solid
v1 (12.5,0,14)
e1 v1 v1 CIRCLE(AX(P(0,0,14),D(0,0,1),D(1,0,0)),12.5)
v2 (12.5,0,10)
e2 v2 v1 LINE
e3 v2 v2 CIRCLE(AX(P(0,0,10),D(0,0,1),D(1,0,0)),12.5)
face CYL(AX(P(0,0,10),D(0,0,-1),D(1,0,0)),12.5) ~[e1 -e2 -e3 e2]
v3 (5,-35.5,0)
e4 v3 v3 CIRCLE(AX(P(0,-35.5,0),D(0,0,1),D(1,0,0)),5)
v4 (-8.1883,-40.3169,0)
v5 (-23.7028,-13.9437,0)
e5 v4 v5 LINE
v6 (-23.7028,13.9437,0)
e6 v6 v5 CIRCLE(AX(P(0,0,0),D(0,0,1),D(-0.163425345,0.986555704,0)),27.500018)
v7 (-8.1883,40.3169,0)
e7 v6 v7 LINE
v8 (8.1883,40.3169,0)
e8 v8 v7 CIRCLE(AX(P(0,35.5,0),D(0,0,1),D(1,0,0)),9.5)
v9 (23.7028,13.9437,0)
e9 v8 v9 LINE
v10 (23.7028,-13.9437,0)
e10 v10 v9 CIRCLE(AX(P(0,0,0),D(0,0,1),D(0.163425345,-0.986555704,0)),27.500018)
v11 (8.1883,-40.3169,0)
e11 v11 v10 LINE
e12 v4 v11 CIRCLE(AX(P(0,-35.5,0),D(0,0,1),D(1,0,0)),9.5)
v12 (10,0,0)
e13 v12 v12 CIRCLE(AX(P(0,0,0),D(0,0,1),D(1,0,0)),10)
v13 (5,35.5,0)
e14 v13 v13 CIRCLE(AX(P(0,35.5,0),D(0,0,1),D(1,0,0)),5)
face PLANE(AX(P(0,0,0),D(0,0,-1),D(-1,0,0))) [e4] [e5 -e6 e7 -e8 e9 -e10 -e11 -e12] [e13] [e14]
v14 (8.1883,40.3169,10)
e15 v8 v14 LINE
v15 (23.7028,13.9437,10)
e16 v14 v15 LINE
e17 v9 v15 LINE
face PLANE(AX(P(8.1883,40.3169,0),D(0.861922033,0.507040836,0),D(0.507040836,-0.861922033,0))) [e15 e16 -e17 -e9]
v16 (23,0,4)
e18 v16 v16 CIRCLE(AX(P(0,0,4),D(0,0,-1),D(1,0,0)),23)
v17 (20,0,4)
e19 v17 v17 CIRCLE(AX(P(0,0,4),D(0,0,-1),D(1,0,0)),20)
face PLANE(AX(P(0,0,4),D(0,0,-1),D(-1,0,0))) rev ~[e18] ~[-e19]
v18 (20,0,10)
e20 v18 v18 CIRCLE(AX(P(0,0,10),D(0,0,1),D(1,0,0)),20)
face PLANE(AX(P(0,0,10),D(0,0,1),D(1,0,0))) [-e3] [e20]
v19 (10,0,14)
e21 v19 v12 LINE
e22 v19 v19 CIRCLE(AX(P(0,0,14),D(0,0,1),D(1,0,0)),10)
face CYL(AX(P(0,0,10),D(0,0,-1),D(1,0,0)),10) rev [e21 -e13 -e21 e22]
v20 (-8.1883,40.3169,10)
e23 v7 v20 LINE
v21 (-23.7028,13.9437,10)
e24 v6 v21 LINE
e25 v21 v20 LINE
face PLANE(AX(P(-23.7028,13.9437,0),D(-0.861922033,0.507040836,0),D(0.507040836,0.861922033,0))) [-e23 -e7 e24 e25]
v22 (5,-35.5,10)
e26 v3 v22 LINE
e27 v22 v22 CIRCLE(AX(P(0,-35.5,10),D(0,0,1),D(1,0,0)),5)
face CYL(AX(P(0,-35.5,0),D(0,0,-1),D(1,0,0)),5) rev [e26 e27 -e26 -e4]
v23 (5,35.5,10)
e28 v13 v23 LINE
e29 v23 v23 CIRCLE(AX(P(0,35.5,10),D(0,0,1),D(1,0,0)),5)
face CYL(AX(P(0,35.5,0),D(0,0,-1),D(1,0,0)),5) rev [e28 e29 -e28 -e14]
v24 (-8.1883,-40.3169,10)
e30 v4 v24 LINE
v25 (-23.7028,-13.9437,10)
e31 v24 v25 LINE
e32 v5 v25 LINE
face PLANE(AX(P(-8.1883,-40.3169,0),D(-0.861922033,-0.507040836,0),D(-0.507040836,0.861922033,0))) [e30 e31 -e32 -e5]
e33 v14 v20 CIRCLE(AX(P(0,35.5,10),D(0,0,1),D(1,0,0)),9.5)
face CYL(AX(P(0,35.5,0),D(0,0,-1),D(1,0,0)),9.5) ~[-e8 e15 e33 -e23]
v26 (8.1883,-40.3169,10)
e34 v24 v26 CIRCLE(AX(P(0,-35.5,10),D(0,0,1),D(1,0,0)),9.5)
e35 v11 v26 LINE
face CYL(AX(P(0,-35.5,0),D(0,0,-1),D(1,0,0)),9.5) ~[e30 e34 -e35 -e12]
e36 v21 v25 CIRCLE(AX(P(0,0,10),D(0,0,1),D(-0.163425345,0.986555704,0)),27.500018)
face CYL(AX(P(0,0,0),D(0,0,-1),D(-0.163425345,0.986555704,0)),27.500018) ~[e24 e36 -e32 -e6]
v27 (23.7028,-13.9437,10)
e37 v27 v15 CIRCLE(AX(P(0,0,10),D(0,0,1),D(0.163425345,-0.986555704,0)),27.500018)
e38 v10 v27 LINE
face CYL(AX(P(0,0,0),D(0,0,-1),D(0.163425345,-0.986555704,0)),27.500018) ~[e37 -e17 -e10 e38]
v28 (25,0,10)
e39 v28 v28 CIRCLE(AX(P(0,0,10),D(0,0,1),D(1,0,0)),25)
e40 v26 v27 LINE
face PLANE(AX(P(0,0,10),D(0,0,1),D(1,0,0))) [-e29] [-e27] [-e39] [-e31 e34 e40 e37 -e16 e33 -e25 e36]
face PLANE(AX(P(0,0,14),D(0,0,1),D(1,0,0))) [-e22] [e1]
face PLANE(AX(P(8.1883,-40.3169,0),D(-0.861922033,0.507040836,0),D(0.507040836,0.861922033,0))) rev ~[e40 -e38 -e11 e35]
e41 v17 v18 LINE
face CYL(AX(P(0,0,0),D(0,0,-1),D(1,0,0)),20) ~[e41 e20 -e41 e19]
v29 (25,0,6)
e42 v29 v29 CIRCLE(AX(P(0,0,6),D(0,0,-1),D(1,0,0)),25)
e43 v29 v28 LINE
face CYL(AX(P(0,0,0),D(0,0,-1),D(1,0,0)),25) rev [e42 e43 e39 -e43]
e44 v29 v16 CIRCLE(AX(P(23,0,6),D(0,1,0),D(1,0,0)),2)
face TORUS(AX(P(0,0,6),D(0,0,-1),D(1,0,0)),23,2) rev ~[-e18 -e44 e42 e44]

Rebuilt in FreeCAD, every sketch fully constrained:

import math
import FreeCAD as App
import Part
import Sketcher


def edges_at(feature, points):
    """Names of the edges that pass closest to the given points."""
    edges = feature.Shape.Edges
    near = lambda p: min(range(len(edges)), key=lambda i: edges[i].distToShape(Part.Vertex(*p))[0])
    return sorted({f"Edge{near(p) + 1}" for p in points})

doc = App.newDocument("Part")
body = doc.addObject("PartDesign::Body", "Body")
body.AllowCompound = True

sketch1 = body.newObject("Sketcher::SketchObject", "Sketch")
sketch1.AttachmentSupport = (doc.getObject("XY_Plane"), [""])
sketch1.MapMode = "FlatFace"
sketch1.addGeometry([
    Part.ArcOfCircle(Part.Circle(App.Vector(0, -36, 0), App.Vector(0, 0, 1), 10), math.radians(-150), math.radians(-30)),
    Part.LineSegment(App.Vector(8, -40, 0), App.Vector(24, -14, 0)),
    Part.ArcOfCircle(Part.Circle(App.Vector(0, 0, 0), App.Vector(0, 0, 1), 28), math.radians(-30), math.radians(30)),
    Part.LineSegment(App.Vector(24, 14, 0), App.Vector(8, 40, 0)),
    Part.ArcOfCircle(Part.Circle(App.Vector(0, 36, 0), App.Vector(0, 0, 1), 10), math.radians(30), math.radians(150)),
    Part.LineSegment(App.Vector(-8, 40, 0), App.Vector(-24, 14, 0)),
    Part.ArcOfCircle(Part.Circle(App.Vector(0, 0, 0), App.Vector(0, 0, 1), 28), math.radians(150), math.radians(210)),
    Part.LineSegment(App.Vector(-24, -14, 0), App.Vector(-8, -40, 0)),
    Part.Circle(App.Vector(0, -36, 0), App.Vector(0, 0, 1), 5),
    Part.Circle(App.Vector(0, 0, 0), App.Vector(0, 0, 1), 25),
    Part.Circle(App.Vector(0, 36, 0), App.Vector(0, 0, 1), 5),
    Part.Circle(App.Vector(0, 0, 0), App.Vector(0, 0, 1), 20),
    Part.Circle(App.Vector(0, 0, 0), App.Vector(0, 0, 1), 10),
], False)
sketch1.addConstraint([
    Sketcher.Constraint("Tangent", 0, 2, 1, 1),
    Sketcher.Constraint("Tangent", 1, 2, 2, 1),
    Sketcher.Constraint("Tangent", 2, 2, 3, 1),
    Sketcher.Constraint("Tangent", 3, 2, 4, 1),
    Sketcher.Constraint("Tangent", 4, 2, 5, 1),
    Sketcher.Constraint("Tangent", 5, 2, 6, 1),
    Sketcher.Constraint("Tangent", 6, 2, 7, 1),
    Sketcher.Constraint("Tangent", 7, 2, 0, 1),
    Sketcher.Constraint("Coincident", 2, 3, -1, 1),
    Sketcher.Constraint("Coincident", 6, 3, -1, 1),
    Sketcher.Constraint("Coincident", 9, 3, -1, 1),
    Sketcher.Constraint("Coincident", 11, 3, -1, 1),
    Sketcher.Constraint("Coincident", 12, 3, -1, 1),
    Sketcher.Constraint("Coincident", 8, 3, 0, 3),
    Sketcher.Constraint("Coincident", 10, 3, 4, 3),
    Sketcher.Constraint("Equal", 0, 4),
    Sketcher.Constraint("Equal", 2, 6),
    Sketcher.Constraint("Equal", 8, 10),
    Sketcher.Constraint("Symmetric", 0, 3, 4, 3, -1, 1),
    Sketcher.Constraint("PointOnObject", 0, 3, -2),
    Sketcher.Constraint("Diameter", 8, 10.0),
    Sketcher.Constraint("Diameter", 9, 50.0),
    Sketcher.Constraint("Diameter", 11, 40.0),
    Sketcher.Constraint("Diameter", 12, 20.0),
    Sketcher.Constraint("Radius", 0, 9.5),
    Sketcher.Constraint("Radius", 2, 27.5),
    Sketcher.Constraint("DistanceY", 0, 3, 4, 3, 71.0),
])
pad1 = body.newObject("PartDesign::Pad", "Pad")
pad1.Profile = sketch1
pad1.Length = 10

sketch2 = body.newObject("Sketcher::SketchObject", "Sketch001")
sketch2.AttachmentSupport = (doc.getObject("XY_Plane"), [""])
sketch2.MapMode = "FlatFace"
sketch2.AttachmentOffset = App.Placement(App.Vector(0, 0, 10), App.Rotation())
sketch2.addGeometry([
    Part.Circle(App.Vector(0, 0, 0), App.Vector(0, 0, 1), 12),
    Part.Circle(App.Vector(0, 0, 0), App.Vector(0, 0, 1), 10),
], False)
sketch2.addConstraint([
    Sketcher.Constraint("Coincident", 0, 3, -1, 1),
    Sketcher.Constraint("Coincident", 1, 3, -1, 1),
    Sketcher.Constraint("Diameter", 0, 25.0),
    Sketcher.Constraint("Diameter", 1, 20.0),
])
pad2 = body.newObject("PartDesign::Pad", "Pad001")
pad2.Profile = sketch2
pad2.Length = 4

sketch3 = body.newObject("Sketcher::SketchObject", "Sketch002")
sketch3.AttachmentSupport = (doc.getObject("XY_Plane"), [""])
sketch3.MapMode = "FlatFace"
sketch3.addGeometry([
    Part.Circle(App.Vector(0, 0, 0), App.Vector(0, 0, 1), 25),
    Part.Circle(App.Vector(0, 0, 0), App.Vector(0, 0, 1), 20),
], False)
sketch3.addConstraint([
    Sketcher.Constraint("Coincident", 0, 3, -1, 1),
    Sketcher.Constraint("Coincident", 1, 3, -1, 1),
    Sketcher.Constraint("Diameter", 0, 50.0),
    Sketcher.Constraint("Diameter", 1, 40.0),
])
pad3 = body.newObject("PartDesign::Pad", "Pad002")
pad3.Profile = sketch3
pad3.Length = 4
doc.recompute()

fillet = body.newObject("PartDesign::Fillet", "Fillet")
fillet.Base = (pad3, edges_at(pad3, [(-25, 0, 4)]))
fillet.Radius = 2

doc.recompute()
